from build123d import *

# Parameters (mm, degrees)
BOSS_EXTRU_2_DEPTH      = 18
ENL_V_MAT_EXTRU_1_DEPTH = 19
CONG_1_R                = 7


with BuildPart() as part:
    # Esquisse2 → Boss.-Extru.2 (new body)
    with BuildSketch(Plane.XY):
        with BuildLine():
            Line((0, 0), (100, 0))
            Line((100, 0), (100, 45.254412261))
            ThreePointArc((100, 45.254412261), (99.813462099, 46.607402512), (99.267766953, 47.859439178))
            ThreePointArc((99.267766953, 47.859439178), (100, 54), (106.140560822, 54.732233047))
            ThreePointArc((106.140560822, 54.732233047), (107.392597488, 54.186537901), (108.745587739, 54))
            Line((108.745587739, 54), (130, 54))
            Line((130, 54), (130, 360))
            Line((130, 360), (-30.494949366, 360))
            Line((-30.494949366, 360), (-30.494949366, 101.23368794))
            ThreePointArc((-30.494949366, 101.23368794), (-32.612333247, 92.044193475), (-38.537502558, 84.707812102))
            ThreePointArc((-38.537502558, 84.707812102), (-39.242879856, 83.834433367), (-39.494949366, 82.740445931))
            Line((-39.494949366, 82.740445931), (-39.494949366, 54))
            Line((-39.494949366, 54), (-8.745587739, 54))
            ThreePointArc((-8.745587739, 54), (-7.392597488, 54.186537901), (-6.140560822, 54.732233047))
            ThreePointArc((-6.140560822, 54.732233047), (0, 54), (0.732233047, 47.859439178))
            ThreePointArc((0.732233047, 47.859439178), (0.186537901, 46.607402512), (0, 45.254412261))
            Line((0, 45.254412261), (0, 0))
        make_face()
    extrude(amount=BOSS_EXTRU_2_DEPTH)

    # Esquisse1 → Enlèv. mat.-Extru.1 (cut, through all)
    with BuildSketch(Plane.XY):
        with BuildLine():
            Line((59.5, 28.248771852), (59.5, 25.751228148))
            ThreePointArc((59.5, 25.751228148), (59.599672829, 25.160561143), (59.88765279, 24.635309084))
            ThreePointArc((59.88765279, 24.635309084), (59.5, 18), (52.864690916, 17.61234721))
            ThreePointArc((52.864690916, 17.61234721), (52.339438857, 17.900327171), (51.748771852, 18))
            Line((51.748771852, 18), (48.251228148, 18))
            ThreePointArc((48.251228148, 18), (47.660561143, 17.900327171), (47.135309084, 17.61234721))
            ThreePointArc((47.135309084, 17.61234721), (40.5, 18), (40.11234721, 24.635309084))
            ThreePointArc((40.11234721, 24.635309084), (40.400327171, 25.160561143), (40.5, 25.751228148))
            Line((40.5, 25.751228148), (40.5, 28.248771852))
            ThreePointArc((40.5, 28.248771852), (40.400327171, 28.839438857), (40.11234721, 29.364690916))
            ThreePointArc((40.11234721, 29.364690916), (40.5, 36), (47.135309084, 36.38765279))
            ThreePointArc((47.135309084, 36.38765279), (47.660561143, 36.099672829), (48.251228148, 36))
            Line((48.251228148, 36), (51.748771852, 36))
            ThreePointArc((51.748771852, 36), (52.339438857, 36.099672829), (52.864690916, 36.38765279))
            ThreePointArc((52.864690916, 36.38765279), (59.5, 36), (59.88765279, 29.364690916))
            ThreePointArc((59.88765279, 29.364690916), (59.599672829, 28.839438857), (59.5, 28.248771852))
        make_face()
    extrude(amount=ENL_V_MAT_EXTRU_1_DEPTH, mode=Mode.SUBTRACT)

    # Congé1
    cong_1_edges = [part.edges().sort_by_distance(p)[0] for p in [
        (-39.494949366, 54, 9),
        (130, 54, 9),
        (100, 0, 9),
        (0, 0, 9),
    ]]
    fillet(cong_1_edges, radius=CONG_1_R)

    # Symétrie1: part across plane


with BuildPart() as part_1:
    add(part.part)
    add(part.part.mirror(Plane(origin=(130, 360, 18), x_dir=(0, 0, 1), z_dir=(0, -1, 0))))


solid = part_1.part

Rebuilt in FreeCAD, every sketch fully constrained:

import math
import FreeCAD as App
import Part
import Sketcher
Q = App.Units.Quantity


def edges_at(feature, points):
    """Names of the edges that pass closest to the given points."""
    edges = feature.Shape.Edges
    near = lambda p: min(range(len(edges)), key=lambda i: edges[i].distToShape(Part.Vertex(*p))[0])
    return sorted({f"Edge{near(p) + 1}" for p in points})

doc = App.newDocument("Part")
body = doc.addObject("PartDesign::Body", "Body")

# Sketch on XY plane
sketch1 = body.newObject("Sketcher::SketchObject", "Sketch")
sketch1.AttachmentSupport = (doc.getObject("XY_Plane"), [""])
sketch1.MapMode = "FlatFace"
sketch1.addGeometry([
    Part.LineSegment(App.Vector(0, 0, 0), App.Vector(100, 0, 0)),  # 0
    Part.LineSegment(App.Vector(100, 0, 0), App.Vector(100, 45.254412, 0)),  # 1
    Part.ArcOfCircle(Part.Circle(App.Vector(95, 45.254412, 0), App.Vector(0, 0, 1), 5), math.radians(0), math.radians(31.399715)),  # 2
    Part.ArcOfCircle(Part.Circle(App.Vector(103.535534, 50.464466, 0), App.Vector(0, 0, 1), 5), math.radians(58.600285), math.radians(211.399715)),  # 3
    Part.ArcOfCircle(Part.Circle(App.Vector(108.745588, 59, 0), App.Vector(0, 0, 1), 5), math.radians(-121.399715), math.radians(-90)),  # 4
    Part.LineSegment(App.Vector(108.745588, 54, 0), App.Vector(130, 54, 0)),  # 5
    Part.LineSegment(App.Vector(130, 54, 0), App.Vector(130, 360, 0)),  # 6
    Part.LineSegment(App.Vector(130, 360, 0), App.Vector(-30.494949, 360, 0)),  # 7
    Part.LineSegment(App.Vector(-30.494949, 360, 0), App.Vector(-30.494949, 101.233688, 0)),  # 8
    Part.ArcOfCircle(Part.Circle(App.Vector(-51.494949, 101.233688, 0), App.Vector(0, 0, 1), 21), math.radians(-51.901063), math.radians(0)),  # 9
    Part.ArcOfCircle(Part.Circle(App.Vector(-36.994949, 82.740446, 0), App.Vector(0, 0, 1), 2.5), math.radians(128.098937), math.radians(180)),  # 10
    Part.LineSegment(App.Vector(-39.494949, 82.740446, 0), App.Vector(-39.494949, 54, 0)),  # 11
    Part.LineSegment(App.Vector(-39.494949, 54, 0), App.Vector(-8.745588, 54, 0)),  # 12
    Part.ArcOfCircle(Part.Circle(App.Vector(-8.745588, 59, 0), App.Vector(0, 0, 1), 5), math.radians(-90), math.radians(-58.600285)),  # 13
    Part.ArcOfCircle(Part.Circle(App.Vector(-3.535534, 50.464466, 0), App.Vector(0, 0, 1), 5), math.radians(-31.399715), math.radians(121.399715)),  # 14
    Part.ArcOfCircle(Part.Circle(App.Vector(5, 45.254412, 0), App.Vector(0, 0, 1), 5), math.radians(148.600285), math.radians(180)),  # 15
    Part.LineSegment(App.Vector(0, 45.254412, 0), App.Vector(0, 0, 0)),  # 16
], False)
sketch1.addConstraint([
    Sketcher.Constraint("Coincident", 0, 2, 1, 1),
    Sketcher.Constraint("Tangent", 1, 2, 2, 1),
    Sketcher.Constraint("Tangent", 2, 2, 3, 2),
    Sketcher.Constraint("Tangent", 3, 1, 4, 1),
    Sketcher.Constraint("Tangent", 4, 2, 5, 1),
    Sketcher.Constraint("Coincident", 5, 2, 6, 1),
    Sketcher.Constraint("Coincident", 6, 2, 7, 1),
    Sketcher.Constraint("Coincident", 7, 2, 8, 1),
    Sketcher.Constraint("Tangent", 8, 2, 9, 2),
    Sketcher.Constraint("Tangent", 9, 1, 10, 1),
    Sketcher.Constraint("Tangent", 10, 2, 11, 1),
    Sketcher.Constraint("Coincident", 11, 2, 12, 1),
    Sketcher.Constraint("Tangent", 12, 2, 13, 1),
    Sketcher.Constraint("Tangent", 13, 2, 14, 2),
    Sketcher.Constraint("Tangent", 14, 1, 15, 1),
    Sketcher.Constraint("Tangent", 15, 2, 16, 1),
    Sketcher.Constraint("Coincident", 16, 2, 0, 1),
    Sketcher.Constraint("Horizontal", 0),
    Sketcher.Constraint("Vertical", 1),
    Sketcher.Constraint("Horizontal", 5),
    Sketcher.Constraint("Vertical", 6),
    Sketcher.Constraint("Horizontal", 7),
    Sketcher.Constraint("Vertical", 8),
    Sketcher.Constraint("Vertical", 11),
    Sketcher.Constraint("Horizontal", 12),
    Sketcher.Constraint("Vertical", 16),
    Sketcher.Constraint("Coincident", 16, 2, -1, 1),
    Sketcher.Constraint("Equal", 2, 3),
    Sketcher.Constraint("Equal", 3, 4),
    Sketcher.Constraint("Equal", 4, 13),
    Sketcher.Constraint("Equal", 13, 14),
    Sketcher.Constraint("Equal", 14, 15),
    Sketcher.Constraint("Horizontal", 4, 3, 13, 3),
    Sketcher.Constraint("Horizontal", 3, 3, 14, 3),
    Sketcher.Constraint("Horizontal", 2, 3, 15, 3),
    Sketcher.Constraint("Radius", 2, Q("5 mm")),
    Sketcher.Constraint("Radius", 9, Q("21 mm")),
    Sketcher.Constraint("Radius", 10, Q("2.5 mm")),
    Sketcher.Constraint("DistanceX", 0, 1, 0, 2, Q("100 mm")),
    Sketcher.Constraint("DistanceY", 6, 1, 6, 2, Q("306 mm")),
    Sketcher.Constraint("DistanceY", -1, 1, 4, 3, Q("59 mm")),
    Sketcher.Constraint("DistanceX", -1, 1, 5, 2, Q("130 mm")),
    Sketcher.Constraint("DistanceX", 10, 2, 8, 2, Q("9 mm")),
    Sketcher.Constraint("DistanceX", 7, 2, 7, 1, Q("160.494949 mm")),
    Sketcher.Constraint("DistanceX", 12, 1, 12, 2, Q("30.749362 mm")),
    Sketcher.Constraint("DistanceY", 1, 1, 1, 2, Q("45.254412 mm")),
    Sketcher.Constraint("DistanceY", 8, 2, 8, 1, Q("258.766312 mm")),
])
pad1 = body.newObject("PartDesign::Pad", "Pad")
pad1.Profile = sketch1
pad1.Length = 18

# Sketch on XY plane
sketch2 = body.newObject("Sketcher::SketchObject", "Sketch001")
sketch2.AttachmentSupport = (doc.getObject("XY_Plane"), [""])
sketch2.MapMode = "FlatFace"
sketch2.addGeometry([
    Part.LineSegment(App.Vector(59.5, 25.751228, 0), App.Vector(59.5, 28.248772, 0)),  # 0
    Part.ArcOfCircle(Part.Circle(App.Vector(61.3, 28.248772, 0), App.Vector(0, 0, 1), 1.8), math.radians(141.687149), math.radians(180)),  # 1
    Part.ArcOfCircle(Part.Circle(App.Vector(55.964466, 32.464466, 0), App.Vector(0, 0, 1), 5), math.radians(-38.312851), math.radians(128.312851)),  # 2
    Part.ArcOfCircle(Part.Circle(App.Vector(51.748772, 37.8, 0), App.Vector(0, 0, 1), 1.8), math.radians(-90), math.radians(-51.687149)),  # 3
    Part.LineSegment(App.Vector(51.748772, 36, 0), App.Vector(48.251228, 36, 0)),  # 4
    Part.ArcOfCircle(Part.Circle(App.Vector(48.251228, 37.8, 0), App.Vector(0, 0, 1), 1.8), math.radians(-128.312851), math.radians(-90)),  # 5
    Part.ArcOfCircle(Part.Circle(App.Vector(44.035534, 32.464466, 0), App.Vector(0, 0, 1), 5), math.radians(51.687149), math.radians(218.312851)),  # 6
    Part.ArcOfCircle(Part.Circle(App.Vector(38.7, 28.248772, 0), App.Vector(0, 0, 1), 1.8), math.radians(0), math.radians(38.312851)),  # 7
    Part.LineSegment(App.Vector(40.5, 28.248772, 0), App.Vector(40.5, 25.751228, 0)),  # 8
    Part.ArcOfCircle(Part.Circle(App.Vector(38.7, 25.751228, 0), App.Vector(0, 0, 1), 1.8), math.radians(-38.312851), math.radians(0)),  # 9
    Part.ArcOfCircle(Part.Circle(App.Vector(44.035534, 21.535534, 0), App.Vector(0, 0, 1), 5), math.radians(141.687149), math.radians(308.312851)),  # 10
    Part.ArcOfCircle(Part.Circle(App.Vector(48.251228, 16.2, 0), App.Vector(0, 0, 1), 1.8), math.radians(90), math.radians(128.312851)),  # 11
    Part.LineSegment(App.Vector(48.251228, 18, 0), App.Vector(51.748772, 18, 0)),  # 12
    Part.ArcOfCircle(Part.Circle(App.Vector(51.748772, 16.2, 0), App.Vector(0, 0, 1), 1.8), math.radians(51.687149), math.radians(90)),  # 13
    Part.ArcOfCircle(Part.Circle(App.Vector(55.964466, 21.535534, 0), App.Vector(0, 0, 1), 5), math.radians(-128.312851), math.radians(38.312851)),  # 14
    Part.ArcOfCircle(Part.Circle(App.Vector(61.3, 25.751228, 0), App.Vector(0, 0, 1), 1.8), math.radians(-180), math.radians(-141.687149)),  # 15
], False)
sketch2.addConstraint([
    Sketcher.Constraint("Tangent", 0, 2, 1, 2),
    Sketcher.Constraint("Tangent", 1, 1, 2, 1),
    Sketcher.Constraint("Tangent", 2, 2, 3, 2),
    Sketcher.Constraint("Tangent", 3, 1, 4, 1),
    Sketcher.Constraint("Tangent", 4, 2, 5, 2),
    Sketcher.Constraint("Tangent", 5, 1, 6, 1),
    Sketcher.Constraint("Tangent", 6, 2, 7, 2),
    Sketcher.Constraint("Tangent", 7, 1, 8, 1),
    Sketcher.Constraint("Tangent", 8, 2, 9, 2),
    Sketcher.Constraint("Tangent", 9, 1, 10, 1),
    Sketcher.Constraint("Tangent", 10, 2, 11, 2),
    Sketcher.Constraint("Tangent", 11, 1, 12, 1),
    Sketcher.Constraint("Tangent", 12, 2, 13, 2),
    Sketcher.Constraint("Tangent", 13, 1, 14, 1),
    Sketcher.Constraint("Tangent", 14, 2, 15, 2),
    Sketcher.Constraint("Tangent", 15, 1, 0, 1),
    Sketcher.Constraint("Vertical", 0),
    Sketcher.Constraint("Horizontal", 4),
    Sketcher.Constraint("Vertical", 8),
    Sketcher.Constraint("Horizontal", 12),
    Sketcher.Constraint("Equal", 1, 3),
    Sketcher.Constraint("Equal", 3, 5),
    Sketcher.Constraint("Equal", 2, 6),
    Sketcher.Constraint("Equal", 5, 7),
    Sketcher.Constraint("Equal", 7, 9),
    Sketcher.Constraint("Equal", 6, 10),
    Sketcher.Constraint("Equal", 9, 11),
    Sketcher.Constraint("Equal", 11, 13),
    Sketcher.Constraint("Equal", 10, 14),
    Sketcher.Constraint("Equal", 13, 15),
    Sketcher.Constraint("Horizontal", 2, 3, 6, 3),
    Sketcher.Constraint("Horizontal", 1, 3, 7, 3),
    Sketcher.Constraint("Horizontal", 10, 3, 14, 3),
    Sketcher.Constraint("Horizontal", 9, 3, 15, 3),
    Sketcher.Constraint("Vertical", 6, 3, 10, 3),
    Sketcher.Constraint("Vertical", 5, 3, 11, 3),
    Sketcher.Constraint("Radius", 2, Q("5 mm")),
    Sketcher.Constraint("Radius", 1, Q("1.8 mm")),
    Sketcher.Constraint("DistanceY", -1, 1, 3, 1, Q("36 mm")),
    Sketcher.Constraint("DistanceY", -1, 1, 11, 1, Q("18 mm")),
    Sketcher.Constraint("DistanceX", -1, 1, 1, 3, Q("61.3 mm")),
    Sketcher.Constraint("DistanceX", -1, 1, 7, 3, Q("38.7 mm")),
    Sketcher.Constraint("DistanceX", 4, 2, 4, 1, Q("3.497544 mm")),
    Sketcher.Constraint("DistanceY", 0, 1, 0, 2, Q("2.497544 mm")),
])
pocket1 = body.newObject("PartDesign::Pocket", "Pocket")
pocket1.Profile = sketch2
pocket1.Type = "ThroughAll"
pocket1.Reversed = True
doc.recompute()

fillet = body.newObject("PartDesign::Fillet", "Fillet")
fillet.Base = (pocket1, edges_at(pocket1, [
    (-39.495, 54, 9),
    (130, 54, 9),
    (100, 0, 9),
    (0, 0, 9),
]))
fillet.Radius = 7
body2 = doc.addObject("PartDesign::Body", "Body001")
doc.recompute()

body2.BaseFeature = body
doc.recompute()

mirroring = doc.addObject("Part::Mirroring", "Mirroring")
mirroring.Source = body
mirroring.Base = App.Vector(130, 360, 18)
mirroring.Normal = App.Vector(0, -1, 0)
body3 = doc.addObject("PartDesign::Body", "Body002")
body3.BaseFeature = mirroring
boolean = body2.newObject("PartDesign::Boolean", "Boolean")
boolean.Type = "Fuse"
boolean.addObjects([body3])
doc.recompute()
mirroring.Visibility = False

doc.recompute()
